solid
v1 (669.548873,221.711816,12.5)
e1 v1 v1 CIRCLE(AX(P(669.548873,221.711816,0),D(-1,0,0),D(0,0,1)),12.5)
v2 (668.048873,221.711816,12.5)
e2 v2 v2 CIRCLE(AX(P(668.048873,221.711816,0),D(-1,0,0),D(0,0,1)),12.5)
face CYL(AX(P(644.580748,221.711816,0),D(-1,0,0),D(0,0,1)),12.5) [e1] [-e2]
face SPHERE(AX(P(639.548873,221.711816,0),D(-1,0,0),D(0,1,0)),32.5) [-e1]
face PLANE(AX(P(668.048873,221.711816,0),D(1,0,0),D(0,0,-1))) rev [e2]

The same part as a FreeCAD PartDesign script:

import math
import FreeCAD as App
import Part
import Sketcher
from FreeCAD import Vector

doc = App.newDocument("Part")
body = doc.addObject("PartDesign::Body", "Body")

# Sketch on XY plane
sketch1 = body.newObject("Sketcher::SketchObject", "Sketch")
sketch1.AttachmentSupport = (doc.getObject("XY_Plane"), [""])
sketch1.MapMode = "FlatFace"
sketch1.addGeometry([
    Part.LineSegment(Vector(668.048873, 234.211816, 0), Vector(668.048873, 221.711816, 0)),
    Part.LineSegment(Vector(668.048873, 221.711816, 0), Vector(672.048873, 221.711816, 0)),
    Part.ArcOfCircle(Part.Circle(Vector(639.548873, 221.711816, 0), Vector(0, 0, 1), 32.5), math.radians(0), math.radians(22.619865)),
    Part.LineSegment(Vector(669.548873, 234.211816, 0), Vector(668.048873, 234.211816, 0)),
], False)
sketch1.addGeometry(Part.LineSegment(Vector(639.548873, 221.711816, 0), Vector(672.048873, 221.711816, 0)), True)  # axis
sketch1.addConstraint([
    Sketcher.Constraint("Coincident", 0, 2, 1, 1),
    Sketcher.Constraint("Coincident", 1, 2, 2, 1),
    Sketcher.Constraint("Coincident", 2, 2, 3, 1),
    Sketcher.Constraint("Coincident", 3, 2, 0, 1),
    Sketcher.Constraint("Vertical", 0),
    Sketcher.Constraint("Horizontal", 1),
    Sketcher.Constraint("Horizontal", 3),
    Sketcher.Constraint("Horizontal", 4),
    Sketcher.Constraint("Coincident", 4, 1, 2, 3),
    Sketcher.Constraint("Coincident", 4, 2, 1, 2),
    Sketcher.Constraint("Radius", 2, 32.5),
    Sketcher.Constraint("DistanceX", 1, 1, 1, 2, 4.0),
    Sketcher.Constraint("DistanceX", 3, 2, 3, 1, 1.5),
    Sketcher.Constraint("DistanceX", -1, 1, 2, 3, 639.548873),
    Sketcher.Constraint("DistanceY", -1, 1, 2, 3, 221.711816),
])
revolution = body.newObject("PartDesign::Revolution", "Revolution")
revolution.Profile = sketch1
revolution.ReferenceAxis = (sketch1, ["Axis0"])
revolution.Angle = 360

doc.recompute()
